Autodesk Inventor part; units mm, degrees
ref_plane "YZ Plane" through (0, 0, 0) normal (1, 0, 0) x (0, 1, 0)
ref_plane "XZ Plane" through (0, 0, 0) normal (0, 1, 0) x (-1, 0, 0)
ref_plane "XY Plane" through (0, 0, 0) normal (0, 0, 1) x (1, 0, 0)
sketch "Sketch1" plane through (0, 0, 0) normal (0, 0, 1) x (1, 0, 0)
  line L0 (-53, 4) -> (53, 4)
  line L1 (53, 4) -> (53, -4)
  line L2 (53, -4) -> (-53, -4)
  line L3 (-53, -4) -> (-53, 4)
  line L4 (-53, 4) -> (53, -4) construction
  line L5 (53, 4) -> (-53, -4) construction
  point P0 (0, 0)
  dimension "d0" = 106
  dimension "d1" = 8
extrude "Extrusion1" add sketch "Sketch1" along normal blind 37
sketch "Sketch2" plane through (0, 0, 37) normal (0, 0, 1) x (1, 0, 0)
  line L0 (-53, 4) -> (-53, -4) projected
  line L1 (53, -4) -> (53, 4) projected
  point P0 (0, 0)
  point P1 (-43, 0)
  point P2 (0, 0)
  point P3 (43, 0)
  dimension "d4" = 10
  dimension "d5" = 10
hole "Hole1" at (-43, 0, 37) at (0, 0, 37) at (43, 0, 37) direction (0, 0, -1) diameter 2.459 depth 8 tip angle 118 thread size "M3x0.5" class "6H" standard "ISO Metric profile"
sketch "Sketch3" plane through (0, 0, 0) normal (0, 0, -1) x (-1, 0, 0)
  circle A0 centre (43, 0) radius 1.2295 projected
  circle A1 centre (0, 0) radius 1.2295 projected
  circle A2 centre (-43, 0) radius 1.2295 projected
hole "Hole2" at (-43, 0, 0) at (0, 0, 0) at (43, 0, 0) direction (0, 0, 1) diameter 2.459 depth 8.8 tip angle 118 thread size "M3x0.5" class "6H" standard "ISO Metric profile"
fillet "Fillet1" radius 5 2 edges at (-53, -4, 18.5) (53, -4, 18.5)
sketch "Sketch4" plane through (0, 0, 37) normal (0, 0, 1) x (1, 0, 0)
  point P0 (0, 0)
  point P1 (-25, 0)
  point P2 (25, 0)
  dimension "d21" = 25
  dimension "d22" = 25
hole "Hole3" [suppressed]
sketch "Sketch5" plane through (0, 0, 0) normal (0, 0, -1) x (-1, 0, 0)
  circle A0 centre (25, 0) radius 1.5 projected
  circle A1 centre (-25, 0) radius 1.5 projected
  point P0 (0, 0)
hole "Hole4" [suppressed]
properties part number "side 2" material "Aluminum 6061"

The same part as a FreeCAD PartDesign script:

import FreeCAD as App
import Part
import Sketcher
from FreeCAD import Vector
Q = App.Units.Quantity


def edges_at(feature, points):
    """Names of the edges that pass closest to the given points."""
    edges = feature.Shape.Edges
    near = lambda p: min(range(len(edges)), key=lambda i: edges[i].distToShape(Part.Vertex(*p))[0])
    return sorted({f"Edge{near(p) + 1}" for p in points})

doc = App.newDocument("Part")
body = doc.addObject("PartDesign::Body", "Body")

sketch1 = body.newObject("Sketcher::SketchObject", "Sketch")
sketch1.AttachmentSupport = (doc.getObject("XY_Plane"), [""])
sketch1.MapMode = "FlatFace"
sketch1.addGeometry([
    Part.LineSegment(Vector(53, 4, 0), Vector(-53, 4, 0)),
    Part.LineSegment(Vector(-53, 4, 0), Vector(-53, -4, 0)),
    Part.LineSegment(Vector(-53, -4, 0), Vector(53, -4, 0)),
    Part.LineSegment(Vector(53, -4, 0), Vector(53, 4, 0)),
], False)
sketch1.addConstraint([
    Sketcher.Constraint("Coincident", 0, 2, 1, 1),
    Sketcher.Constraint("Coincident", 1, 2, 2, 1),
    Sketcher.Constraint("Coincident", 2, 2, 3, 1),
    Sketcher.Constraint("Coincident", 3, 2, 0, 1),
    Sketcher.Constraint("Horizontal", 0),
    Sketcher.Constraint("Vertical", 1),
    Sketcher.Constraint("Horizontal", 2),
    Sketcher.Constraint("Vertical", 3),
    Sketcher.Constraint("Symmetric", 0, 2, 2, 2, -1, 1),
    Sketcher.Constraint("DistanceX", 0, 2, 0, 1, Q("106 mm")),
    Sketcher.Constraint("DistanceY", 1, 2, 1, 1, Q("8 mm")),
])
pad1 = body.newObject("PartDesign::Pad", "Pad")
pad1.Profile = sketch1
pad1.Length = 37

sketch2 = body.newObject("Sketcher::SketchObject", "Sketch001")
sketch2.AttachmentSupport = (doc.getObject("XY_Plane"), [""])
sketch2.MapMode = "FlatFace"
sketch2.AttachmentOffset = App.Placement(Vector(0, 0, 37), App.Rotation())
sketch2.addGeometry([
    Part.Circle(Vector(-43, 0, 0), Vector(0, 0, 1), 1.2),
    Part.Circle(Vector(0, 0, 0), Vector(0, 0, 1), 1.2),
    Part.Circle(Vector(43, 0, 0), Vector(0, 0, 1), 1.2),
], False)
sketch2.addConstraint([
    Sketcher.Constraint("Coincident", 1, 3, -1, 1),
    Sketcher.Constraint("Equal", 0, 1),
    Sketcher.Constraint("Equal", 1, 2),
    Sketcher.Constraint("Symmetric", 0, 3, 2, 3, -1, 1),
    Sketcher.Constraint("PointOnObject", 0, 3, -1),
    Sketcher.Constraint("Diameter", 0, Q("2.459 mm")),
    Sketcher.Constraint("DistanceX", 0, 3, -1, 1, Q("43 mm")),
])
doc.recompute()
hole = body.newObject("PartDesign::Hole", "Hole")
hole.Profile = sketch2
hole.ThreadType = "None"
hole.Diameter = 2.459
hole.DepthType = "Dimension"
hole.Depth = 8
hole.DrillPoint = "Angled"
hole.DrillPointAngle = 118

sketch3 = body.newObject("Sketcher::SketchObject", "Sketch002")
sketch3.AttachmentSupport = (doc.getObject("XY_Plane"), [""])
sketch3.MapMode = "FlatFace"
sketch3.addGeometry([
    Part.Circle(Vector(-43, 0, 0), Vector(0, 0, 1), 1.2),
    Part.Circle(Vector(0, 0, 0), Vector(0, 0, 1), 1.2),
    Part.Circle(Vector(43, 0, 0), Vector(0, 0, 1), 1.2),
], False)
sketch3.addConstraint([
    Sketcher.Constraint("Coincident", 1, 3, -1, 1),
    Sketcher.Constraint("Equal", 0, 1),
    Sketcher.Constraint("Equal", 1, 2),
    Sketcher.Constraint("Symmetric", 0, 3, 2, 3, -1, 1),
    Sketcher.Constraint("PointOnObject", 0, 3, -1),
    Sketcher.Constraint("Diameter", 0, Q("2.459 mm")),
    Sketcher.Constraint("DistanceX", 0, 3, -1, 1, Q("43 mm")),
])
doc.recompute()
hole2 = body.newObject("PartDesign::Hole", "Hole001")
hole2.Profile = sketch3
hole2.ThreadType = "None"
hole2.Diameter = 2.459
hole2.DepthType = "Dimension"
hole2.Depth = 8.8
hole2.DrillPoint = "Angled"
hole2.DrillPointAngle = 118
hole2.Reversed = True
doc.recompute()

fillet = body.newObject("PartDesign::Fillet", "Fillet")
fillet.Base = (hole2, edges_at(hole2, [(-53, -4, 18.5), (53, -4, 18.5)]))
fillet.Radius = 5

doc.recompute()
